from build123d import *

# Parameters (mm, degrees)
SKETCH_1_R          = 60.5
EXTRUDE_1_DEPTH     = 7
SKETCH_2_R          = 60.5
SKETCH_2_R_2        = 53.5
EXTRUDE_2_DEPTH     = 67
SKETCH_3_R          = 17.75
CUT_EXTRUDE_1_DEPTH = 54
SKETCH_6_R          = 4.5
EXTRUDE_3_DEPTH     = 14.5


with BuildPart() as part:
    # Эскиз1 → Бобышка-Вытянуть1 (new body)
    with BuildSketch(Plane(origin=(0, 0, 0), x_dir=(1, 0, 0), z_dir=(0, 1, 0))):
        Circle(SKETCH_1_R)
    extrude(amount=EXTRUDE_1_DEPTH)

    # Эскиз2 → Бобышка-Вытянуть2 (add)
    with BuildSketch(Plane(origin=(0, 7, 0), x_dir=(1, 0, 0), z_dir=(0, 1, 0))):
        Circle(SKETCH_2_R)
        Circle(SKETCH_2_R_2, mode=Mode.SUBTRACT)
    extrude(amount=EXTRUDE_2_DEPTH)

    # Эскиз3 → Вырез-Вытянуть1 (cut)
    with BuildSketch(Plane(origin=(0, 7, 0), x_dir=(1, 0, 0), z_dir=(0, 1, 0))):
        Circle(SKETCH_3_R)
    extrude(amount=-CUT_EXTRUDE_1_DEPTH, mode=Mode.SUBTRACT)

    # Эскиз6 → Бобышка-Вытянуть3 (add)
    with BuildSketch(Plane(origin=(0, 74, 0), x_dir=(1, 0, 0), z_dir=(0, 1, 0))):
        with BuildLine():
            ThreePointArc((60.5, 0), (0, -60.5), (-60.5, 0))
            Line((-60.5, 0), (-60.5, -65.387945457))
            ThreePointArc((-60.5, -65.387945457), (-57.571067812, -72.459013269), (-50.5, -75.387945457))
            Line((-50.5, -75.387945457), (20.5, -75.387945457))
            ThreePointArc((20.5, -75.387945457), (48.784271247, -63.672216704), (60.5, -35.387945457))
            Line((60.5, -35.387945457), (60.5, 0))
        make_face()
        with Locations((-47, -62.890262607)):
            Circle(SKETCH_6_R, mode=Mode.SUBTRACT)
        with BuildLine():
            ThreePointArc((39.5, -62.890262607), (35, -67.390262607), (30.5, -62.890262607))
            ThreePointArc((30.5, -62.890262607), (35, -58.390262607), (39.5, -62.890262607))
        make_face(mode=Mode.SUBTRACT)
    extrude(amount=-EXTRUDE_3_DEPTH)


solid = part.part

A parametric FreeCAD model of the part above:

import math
import FreeCAD as App
import Part
import Sketcher

V = App.Vector
Q = App.Units.Quantity

doc = App.newDocument("Part")
body = doc.addObject("PartDesign::Body", "Body")

# Sketch on XZ plane
sketch1 = body.newObject("Sketcher::SketchObject", "Sketch")
sketch1.AttachmentSupport = (doc.getObject("XZ_Plane"), [""])
sketch1.MapMode = "FlatFace"
sketch1.addGeometry(Part.Circle(V(0, 0, 0), V(0, 0, 1), 60.5), False)
sketch1.addConstraint([
    Sketcher.Constraint("Coincident", 0, 3, -1, 1),
    Sketcher.Constraint("Diameter", 0, Q("121 mm")),
])
pad1 = body.newObject("PartDesign::Pad", "Pad")
pad1.Profile = sketch1
pad1.Length = 7
pad1.Reversed = True

# Sketch on XZ plane
sketch2 = body.newObject("Sketcher::SketchObject", "Sketch001")
sketch2.AttachmentSupport = (doc.getObject("XZ_Plane"), [""])
sketch2.MapMode = "FlatFace"
sketch2.AttachmentOffset = App.Placement(V(0, 0, -7), App.Rotation())
sketch2.addGeometry([
    Part.Circle(V(0, 0, 0), V(0, 0, 1), 60.5),
    Part.Circle(V(0, 0, 0), V(0, 0, 1), 53.5),
], False)
sketch2.addConstraint([
    Sketcher.Constraint("Coincident", 0, 3, -1, 1),
    Sketcher.Constraint("Coincident", 1, 3, -1, 1),
    Sketcher.Constraint("Diameter", 0, Q("121 mm")),
    Sketcher.Constraint("Diameter", 1, Q("107 mm")),
])
pad2 = body.newObject("PartDesign::Pad", "Pad001")
pad2.Profile = sketch2
pad2.Length = 67
pad2.Reversed = True

# Sketch on XZ plane
sketch3 = body.newObject("Sketcher::SketchObject", "Sketch002")
sketch3.AttachmentSupport = (doc.getObject("XZ_Plane"), [""])
sketch3.MapMode = "FlatFace"
sketch3.AttachmentOffset = App.Placement(V(0, 0, -7), App.Rotation())
sketch3.addGeometry(Part.Circle(V(0, 0, 0), V(0, 0, 1), 17.75), False)
sketch3.addConstraint([
    Sketcher.Constraint("Coincident", 0, 3, -1, 1),
    Sketcher.Constraint("Diameter", 0, Q("35.5 mm")),
])
pocket1 = body.newObject("PartDesign::Pocket", "Pocket")
pocket1.Profile = sketch3
pocket1.Length = 54
pocket1.Reversed = True

# Sketch on XZ plane
sketch4 = body.newObject("Sketcher::SketchObject", "Sketch003")
sketch4.AttachmentSupport = (doc.getObject("XZ_Plane"), [""])
sketch4.MapMode = "FlatFace"
sketch4.AttachmentOffset = App.Placement(V(0, 0, -74), App.Rotation())
sketch4.addGeometry([
    Part.ArcOfCircle(Part.Circle(V(0, 0, 0), V(0, 0, 1), 60.5), math.radians(0), math.radians(180)),  # 0
    Part.LineSegment(V(-60.5, 0, 0), V(-60.5, 65.387945, 0)),  # 1
    Part.ArcOfCircle(Part.Circle(V(-50.5, 65.387945, 0), V(0, 0, 1), 10), math.radians(90), math.radians(180)),  # 2
    Part.LineSegment(V(-50.5, 75.387945, 0), V(20.5, 75.387945, 0)),  # 3
    Part.ArcOfCircle(Part.Circle(V(20.5, 35.387945, 0), V(0, 0, 1), 40), math.radians(0), math.radians(90)),  # 4
    Part.LineSegment(V(60.5, 35.387945, 0), V(60.5, 0, 0)),  # 5
    Part.Circle(V(-47, 62.890263, 0), V(0, 0, 1), 4.5),  # 6
    Part.Circle(V(35, 62.890263, 0), V(0, 0, 1), 4.5),  # 7
], False)
sketch4.addConstraint([
    Sketcher.Constraint("Tangent", 0, 2, 1, 1),
    Sketcher.Constraint("Tangent", 1, 2, 2, 2),
    Sketcher.Constraint("Tangent", 2, 1, 3, 1),
    Sketcher.Constraint("Tangent", 3, 2, 4, 2),
    Sketcher.Constraint("Tangent", 4, 1, 5, 1),
    Sketcher.Constraint("Tangent", 5, 2, 0, 1),
    Sketcher.Constraint("Vertical", 1),
    Sketcher.Constraint("Horizontal", 3),
    Sketcher.Constraint("Vertical", 5),
    Sketcher.Constraint("Coincident", 0, 3, -1, 1),
    Sketcher.Constraint("Equal", 6, 7),
    Sketcher.Constraint("Horizontal", 6, 3, 7, 3),
    Sketcher.Constraint("Diameter", 6, Q("9 mm")),
    Sketcher.Constraint("Radius", 2, Q("10 mm")),
    Sketcher.Constraint("Radius", 4, Q("40 mm")),
    Sketcher.Constraint("Radius", 0, Q("60.5 mm")),
    Sketcher.Constraint("DistanceX", 6, 3, -1, 1, Q("47 mm")),
    Sketcher.Constraint("DistanceX", -1, 1, 7, 3, Q("35 mm")),
    Sketcher.Constraint("DistanceY", 1, 1, 1, 2, Q("65.387945 mm")),
    Sketcher.Constraint("DistanceY", -1, 1, 6, 3, Q("62.890263 mm")),
])
pad3 = body.newObject("PartDesign::Pad", "Pad002")
pad3.Profile = sketch4
pad3.Length = 14.5

doc.recompute()
